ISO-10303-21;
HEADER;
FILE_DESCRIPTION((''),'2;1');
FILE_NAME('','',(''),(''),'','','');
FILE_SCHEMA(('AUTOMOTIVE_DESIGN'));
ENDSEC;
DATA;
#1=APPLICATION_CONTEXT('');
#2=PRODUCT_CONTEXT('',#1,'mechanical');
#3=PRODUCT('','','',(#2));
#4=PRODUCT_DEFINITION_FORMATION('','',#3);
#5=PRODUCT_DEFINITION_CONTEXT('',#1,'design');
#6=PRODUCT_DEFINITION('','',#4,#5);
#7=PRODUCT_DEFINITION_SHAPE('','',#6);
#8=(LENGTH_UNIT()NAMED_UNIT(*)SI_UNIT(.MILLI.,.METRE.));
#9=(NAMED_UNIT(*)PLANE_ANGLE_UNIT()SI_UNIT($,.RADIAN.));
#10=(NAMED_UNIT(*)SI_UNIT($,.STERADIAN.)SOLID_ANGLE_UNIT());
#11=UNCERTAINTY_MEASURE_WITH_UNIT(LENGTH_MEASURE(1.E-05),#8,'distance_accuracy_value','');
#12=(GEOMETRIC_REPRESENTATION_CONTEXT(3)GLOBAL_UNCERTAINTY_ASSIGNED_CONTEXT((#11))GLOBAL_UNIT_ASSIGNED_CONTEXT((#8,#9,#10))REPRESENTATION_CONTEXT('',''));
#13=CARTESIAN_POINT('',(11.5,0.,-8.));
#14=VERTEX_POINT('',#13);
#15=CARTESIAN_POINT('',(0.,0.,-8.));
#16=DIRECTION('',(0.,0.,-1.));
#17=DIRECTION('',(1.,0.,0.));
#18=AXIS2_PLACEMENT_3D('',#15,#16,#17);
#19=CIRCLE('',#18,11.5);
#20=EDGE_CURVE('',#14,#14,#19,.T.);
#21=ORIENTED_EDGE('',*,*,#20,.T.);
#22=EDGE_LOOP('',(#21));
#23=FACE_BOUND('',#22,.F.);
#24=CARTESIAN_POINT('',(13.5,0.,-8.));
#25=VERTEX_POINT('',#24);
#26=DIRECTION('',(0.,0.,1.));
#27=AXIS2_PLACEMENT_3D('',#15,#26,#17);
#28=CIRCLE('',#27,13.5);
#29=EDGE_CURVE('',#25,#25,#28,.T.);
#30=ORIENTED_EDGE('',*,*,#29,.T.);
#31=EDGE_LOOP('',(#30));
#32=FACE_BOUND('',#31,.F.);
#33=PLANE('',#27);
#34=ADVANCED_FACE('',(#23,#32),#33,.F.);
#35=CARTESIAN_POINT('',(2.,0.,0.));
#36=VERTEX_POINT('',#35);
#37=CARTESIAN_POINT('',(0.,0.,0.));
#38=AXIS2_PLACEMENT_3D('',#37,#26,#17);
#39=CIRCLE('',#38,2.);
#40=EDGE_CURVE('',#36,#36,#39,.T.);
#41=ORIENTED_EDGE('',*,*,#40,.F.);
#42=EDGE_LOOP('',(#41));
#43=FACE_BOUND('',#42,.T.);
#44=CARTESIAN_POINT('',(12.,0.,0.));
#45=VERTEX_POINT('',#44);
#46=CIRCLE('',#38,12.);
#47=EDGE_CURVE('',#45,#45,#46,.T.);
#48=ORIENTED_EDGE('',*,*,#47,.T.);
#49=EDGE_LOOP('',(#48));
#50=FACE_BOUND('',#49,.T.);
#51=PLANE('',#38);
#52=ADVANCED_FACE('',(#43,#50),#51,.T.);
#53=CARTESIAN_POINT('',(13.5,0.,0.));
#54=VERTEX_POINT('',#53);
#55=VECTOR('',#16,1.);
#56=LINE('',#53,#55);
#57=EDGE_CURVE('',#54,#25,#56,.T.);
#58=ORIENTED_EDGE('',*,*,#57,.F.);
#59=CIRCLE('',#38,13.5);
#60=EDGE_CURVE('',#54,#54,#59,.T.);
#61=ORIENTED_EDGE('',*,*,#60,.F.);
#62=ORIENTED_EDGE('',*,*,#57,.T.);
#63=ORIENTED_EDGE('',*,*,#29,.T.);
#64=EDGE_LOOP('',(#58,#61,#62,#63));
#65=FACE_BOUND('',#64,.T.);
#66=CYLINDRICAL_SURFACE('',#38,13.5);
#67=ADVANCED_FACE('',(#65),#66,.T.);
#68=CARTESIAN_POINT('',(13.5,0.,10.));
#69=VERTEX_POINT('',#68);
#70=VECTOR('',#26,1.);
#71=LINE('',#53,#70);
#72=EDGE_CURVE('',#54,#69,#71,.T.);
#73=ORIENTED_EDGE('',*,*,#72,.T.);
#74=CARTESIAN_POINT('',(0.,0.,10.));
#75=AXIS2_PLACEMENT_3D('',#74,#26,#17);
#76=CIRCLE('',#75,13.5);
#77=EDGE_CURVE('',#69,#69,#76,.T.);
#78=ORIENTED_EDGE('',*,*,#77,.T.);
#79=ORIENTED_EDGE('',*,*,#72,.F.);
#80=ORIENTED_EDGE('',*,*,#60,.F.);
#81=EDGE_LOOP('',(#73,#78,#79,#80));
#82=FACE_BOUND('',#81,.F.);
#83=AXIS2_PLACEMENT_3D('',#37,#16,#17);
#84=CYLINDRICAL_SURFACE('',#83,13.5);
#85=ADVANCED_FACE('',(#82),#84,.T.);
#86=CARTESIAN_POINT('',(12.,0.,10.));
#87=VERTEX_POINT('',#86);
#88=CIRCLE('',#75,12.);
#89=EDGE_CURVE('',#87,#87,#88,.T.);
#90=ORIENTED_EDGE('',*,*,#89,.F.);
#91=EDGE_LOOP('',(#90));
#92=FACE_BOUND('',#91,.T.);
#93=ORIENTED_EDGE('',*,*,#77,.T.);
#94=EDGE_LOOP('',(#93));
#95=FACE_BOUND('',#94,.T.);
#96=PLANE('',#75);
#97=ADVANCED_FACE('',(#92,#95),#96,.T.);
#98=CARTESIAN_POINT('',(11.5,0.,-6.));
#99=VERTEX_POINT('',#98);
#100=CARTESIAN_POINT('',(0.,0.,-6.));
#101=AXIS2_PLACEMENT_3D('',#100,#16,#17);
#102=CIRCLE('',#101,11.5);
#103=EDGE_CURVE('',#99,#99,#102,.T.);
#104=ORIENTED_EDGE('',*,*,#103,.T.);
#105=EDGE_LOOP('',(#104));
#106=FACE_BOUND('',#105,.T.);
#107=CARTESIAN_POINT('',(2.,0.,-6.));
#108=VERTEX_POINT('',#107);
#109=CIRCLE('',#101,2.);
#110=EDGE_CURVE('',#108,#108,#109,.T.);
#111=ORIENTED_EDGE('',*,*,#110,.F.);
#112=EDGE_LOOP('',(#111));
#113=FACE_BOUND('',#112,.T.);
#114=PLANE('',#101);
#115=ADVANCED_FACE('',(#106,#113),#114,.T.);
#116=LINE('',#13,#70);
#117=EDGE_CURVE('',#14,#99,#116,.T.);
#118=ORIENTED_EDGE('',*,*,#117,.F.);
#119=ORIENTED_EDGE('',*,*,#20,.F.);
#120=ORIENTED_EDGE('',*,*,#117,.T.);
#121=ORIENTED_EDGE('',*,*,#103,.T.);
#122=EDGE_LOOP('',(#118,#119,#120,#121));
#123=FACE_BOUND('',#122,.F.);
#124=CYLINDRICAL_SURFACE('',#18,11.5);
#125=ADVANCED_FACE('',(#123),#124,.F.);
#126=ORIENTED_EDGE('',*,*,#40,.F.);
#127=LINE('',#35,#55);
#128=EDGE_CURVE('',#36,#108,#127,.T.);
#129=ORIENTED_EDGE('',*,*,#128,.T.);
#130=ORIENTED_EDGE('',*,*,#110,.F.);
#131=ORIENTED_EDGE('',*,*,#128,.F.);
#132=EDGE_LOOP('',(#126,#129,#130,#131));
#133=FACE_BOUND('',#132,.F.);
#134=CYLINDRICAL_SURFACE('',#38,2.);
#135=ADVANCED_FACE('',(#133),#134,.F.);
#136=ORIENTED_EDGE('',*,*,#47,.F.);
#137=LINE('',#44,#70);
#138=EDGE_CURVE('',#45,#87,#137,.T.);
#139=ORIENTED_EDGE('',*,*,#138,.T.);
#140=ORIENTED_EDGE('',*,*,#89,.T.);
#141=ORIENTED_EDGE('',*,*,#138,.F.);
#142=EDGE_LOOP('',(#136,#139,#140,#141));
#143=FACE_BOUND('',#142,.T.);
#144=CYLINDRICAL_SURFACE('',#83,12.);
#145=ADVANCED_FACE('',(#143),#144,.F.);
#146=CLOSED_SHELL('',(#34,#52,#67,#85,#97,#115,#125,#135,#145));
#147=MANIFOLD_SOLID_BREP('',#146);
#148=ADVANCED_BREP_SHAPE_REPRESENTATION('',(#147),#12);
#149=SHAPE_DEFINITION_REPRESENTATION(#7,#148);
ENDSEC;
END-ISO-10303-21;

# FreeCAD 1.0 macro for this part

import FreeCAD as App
import Part
import Sketcher
from FreeCAD import Vector

doc = App.newDocument("Part")
body = doc.addObject("PartDesign::Body", "Body")

sketch1 = doc.addObject("Sketcher::SketchObject", "Sketch")
body.addObject(sketch1)
sketch1.AttachmentSupport = (doc.XY_Plane, [""])
sketch1.MapMode = "FlatFace"
sketch1.addGeometry([
    Part.Circle(Vector(0, 0, 0), Vector(0, 0, 1), 14),
    Part.Circle(Vector(0, 0, 0), Vector(0, 0, 1), 12),
], False)
sketch1.addConstraint([
    Sketcher.Constraint("Coincident", 0, 3, -1, 1),
    Sketcher.Constraint("Coincident", 1, 3, -1, 1),
    Sketcher.Constraint("Diameter", 0, 27.0),
    Sketcher.Constraint("Diameter", 1, 24.0),
])
pad1 = doc.addObject("PartDesign::Pad", "Pad")
body.addObject(pad1)
pad1.Profile = sketch1
pad1.Length = 10

sketch2 = doc.addObject("Sketcher::SketchObject", "Sketch001")
body.addObject(sketch2)
sketch2.AttachmentSupport = (doc.XY_Plane, [""])
sketch2.MapMode = "FlatFace"
sketch2.addGeometry([
    Part.Circle(Vector(0, 0, 0), Vector(0, 0, 1), 13.5),
    Part.Circle(Vector(0, 0, 0), Vector(0, 0, 1), 2),
], False)
sketch2.addConstraint([
    Sketcher.Constraint("Coincident", 0, 3, -1, 1),
    Sketcher.Constraint("Coincident", 1, 3, -1, 1),
    Sketcher.Constraint("Diameter", 0, 27.0),
    Sketcher.Constraint("Diameter", 1, 4.0),
])
pad2 = doc.addObject("PartDesign::Pad", "Pad001")
body.addObject(pad2)
pad2.Profile = sketch2
pad2.Length = 8
pad2.Reversed = True

sketch3 = doc.addObject("Sketcher::SketchObject", "Sketch002")
body.addObject(sketch3)
sketch3.AttachmentSupport = (doc.XY_Plane, [""])
sketch3.MapMode = "FlatFace"
sketch3.AttachmentOffset = App.Placement(Vector(0, 0, -8), App.Rotation())
sketch3.addGeometry([
    Part.Circle(Vector(0, 0, 0), Vector(0, 0, 1), 11.5),
    Part.Circle(Vector(0, 0, 0), Vector(0, 0, 1), 2),
], False)
sketch3.addConstraint([
    Sketcher.Constraint("Coincident", 0, 3, -1, 1),
    Sketcher.Constraint("Coincident", 1, 3, -1, 1),
    Sketcher.Constraint("Diameter", 1, 4.0),
    Sketcher.Constraint("Diameter", 0, 23.0),
])
pocket1 = doc.addObject("PartDesign::Pocket", "Pocket")
body.addObject(pocket1)
pocket1.Profile = sketch3
pocket1.Length = 2
pocket1.Reversed = True

doc.recompute()
